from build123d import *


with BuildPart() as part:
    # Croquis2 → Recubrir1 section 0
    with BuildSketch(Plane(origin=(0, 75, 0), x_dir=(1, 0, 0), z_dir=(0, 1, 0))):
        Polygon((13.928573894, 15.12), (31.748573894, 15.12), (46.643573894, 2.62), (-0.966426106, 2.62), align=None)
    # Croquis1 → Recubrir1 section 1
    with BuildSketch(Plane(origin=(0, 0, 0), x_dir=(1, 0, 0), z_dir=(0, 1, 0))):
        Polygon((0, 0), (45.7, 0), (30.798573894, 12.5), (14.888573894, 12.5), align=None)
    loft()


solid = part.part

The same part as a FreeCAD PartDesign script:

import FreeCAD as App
import Part
import Sketcher
Q = App.Units.Quantity


def add_polygon(sketch, points):
    """Adds a closed chain of lines whose ends are joined by coincident constraints."""
    first, n = sketch.GeometryCount, len(points)
    for a, b in zip(points, points[1:] + points[:1]):
        sketch.addGeometry(Part.LineSegment(App.Vector(*a, 0), App.Vector(*b, 0)), False)
    for i in range(n):
        sketch.addConstraint(Sketcher.Constraint("Coincident", first + i, 2, first + (i + 1) % n, 1))

doc = App.newDocument("Part")
params = doc.addObject("Spreadsheet::Sheet", "Params")
for row, (alias, value) in enumerate([
    ("sketch1_width", "17.82 mm"),
    ("sketch1_width2", "47.61 mm"),
    ("sketch2_width", "45.7 mm"),
    ("sketch2_width2", "15.91 mm"),
    ("sketch2_length", "19.45 mm"),
], start=1):
    params.set(f"A{row}", alias)
    params.set(f"B{row}", "=" + value)
    params.setAlias(f"B{row}", alias)

body = doc.addObject("PartDesign::Body", "Body")

sketch1 = body.newObject("Sketcher::SketchObject", "Sketch")
sketch1.AttachmentSupport = (doc.getObject("XZ_Plane"), [""])
sketch1.MapMode = "FlatFace"
sketch1.AttachmentOffset = App.Placement(App.Vector(0, 0, -75), App.Rotation())
add_polygon(sketch1, [(32, -15), (14, -15), (-1, -3), (47, -3)])
sketch1.addConstraint([
    Sketcher.Constraint("Horizontal", 0),
    Sketcher.Constraint("Horizontal", 2),
    Sketcher.Constraint("Equal", 1, 3),
    Sketcher.Constraint("DistanceX", 0, 2, 0, 1, Q("17.82 mm")),
    Sketcher.Constraint("DistanceX", 2, 1, 2, 2, Q("47.61 mm")),
    Sketcher.Constraint("DistanceY", 0, 2, 1, 2, Q("12.5 mm")),
    Sketcher.Constraint("DistanceY", 0, 2, -1, 1, Q("15.12 mm")),
    Sketcher.Constraint("DistanceX", -1, 1, 0, 2, Q("13.928574 mm")),
])
sketch1.setExpression("Constraints[7]", "Params.sketch1_width")
sketch1.setExpression("Constraints[8]", "Params.sketch1_width2")

sketch2 = body.newObject("Sketcher::SketchObject", "Sketch001")
sketch2.AttachmentSupport = (doc.getObject("XZ_Plane"), [""])
sketch2.MapMode = "FlatFace"
add_polygon(sketch2, [(0, 0), (46, 0), (31, -12), (15, -12)])
sketch2.addConstraint([
    Sketcher.Constraint("Horizontal", 0),
    Sketcher.Constraint("Horizontal", 2),
    Sketcher.Constraint("Coincident", 3, 2, -1, 1),
    Sketcher.Constraint("DistanceX", 0, 1, 0, 2, Q("45.7 mm")),
    Sketcher.Constraint("DistanceX", 2, 2, 2, 1, Q("15.91 mm")),
    Sketcher.Constraint("DistanceY", 1, 2, -1, 1, Q("12.5 mm")),
    Sketcher.Constraint("Distance", 1, Q("19.45 mm")),
])
sketch2.setExpression("Constraints[7]", "Params.sketch2_width")
sketch2.setExpression("Constraints[8]", "Params.sketch2_width2")
sketch2.setExpression("Constraints[10]", "Params.sketch2_length")

additiveloft = body.newObject("PartDesign::AdditiveLoft", "AdditiveLoft")
additiveloft.Profile = sketch1
additiveloft.Sections = [sketch2]

doc.recompute()
